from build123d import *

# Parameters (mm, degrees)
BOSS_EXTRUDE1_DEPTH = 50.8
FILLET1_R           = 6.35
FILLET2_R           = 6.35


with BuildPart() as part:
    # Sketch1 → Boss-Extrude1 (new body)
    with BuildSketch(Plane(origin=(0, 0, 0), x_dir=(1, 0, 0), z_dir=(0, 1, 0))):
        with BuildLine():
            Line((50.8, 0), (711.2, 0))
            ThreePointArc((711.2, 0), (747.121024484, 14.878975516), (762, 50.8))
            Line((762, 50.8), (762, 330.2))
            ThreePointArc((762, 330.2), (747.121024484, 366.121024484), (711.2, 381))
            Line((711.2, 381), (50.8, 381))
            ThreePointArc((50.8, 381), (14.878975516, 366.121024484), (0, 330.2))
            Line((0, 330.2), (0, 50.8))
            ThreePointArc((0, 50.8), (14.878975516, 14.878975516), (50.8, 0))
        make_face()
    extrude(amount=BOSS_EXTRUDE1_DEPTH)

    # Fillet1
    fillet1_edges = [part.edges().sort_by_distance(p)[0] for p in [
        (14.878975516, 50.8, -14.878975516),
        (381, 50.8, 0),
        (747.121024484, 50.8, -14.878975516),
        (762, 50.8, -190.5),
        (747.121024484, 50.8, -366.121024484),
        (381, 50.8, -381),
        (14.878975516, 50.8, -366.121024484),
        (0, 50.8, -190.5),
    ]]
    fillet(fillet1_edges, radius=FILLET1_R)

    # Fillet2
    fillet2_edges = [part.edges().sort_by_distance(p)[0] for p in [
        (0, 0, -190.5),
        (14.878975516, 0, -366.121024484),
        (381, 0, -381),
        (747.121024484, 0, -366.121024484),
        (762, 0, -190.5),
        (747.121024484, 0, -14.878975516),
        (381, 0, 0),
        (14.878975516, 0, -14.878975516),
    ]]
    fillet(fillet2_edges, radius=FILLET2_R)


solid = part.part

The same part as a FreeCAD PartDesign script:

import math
import FreeCAD as App
import Part
import Sketcher

V = App.Vector
Q = App.Units.Quantity


def edges_at(feature, points):
    """Names of the edges that pass closest to the given points."""
    edges = feature.Shape.Edges
    near = lambda p: min(range(len(edges)), key=lambda i: edges[i].distToShape(Part.Vertex(*p))[0])
    return sorted({f"Edge{near(p) + 1}" for p in points})

doc = App.newDocument("Part")
params = doc.addObject("Spreadsheet::Sheet", "Params")
for row, (alias, value) in enumerate([
    ("sketch1_radius", "2 in"),
    ("sketch1_width", "26 in"),
    ("sketch1_height", "11 in"),
    ("pad1_length", "2 in"),
    ("fillet_radius", "0.25 in"),
    ("fillet2_radius", "0.25 in"),
], start=1):
    params.set(f"A{row}", alias)
    params.set(f"B{row}", "=" + value)
    params.setAlias(f"B{row}", alias)

body = doc.addObject("PartDesign::Body", "Body")

sketch1 = body.newObject("Sketcher::SketchObject", "Sketch")
sketch1.AttachmentSupport = (doc.getObject("XZ_Plane"), [""])
sketch1.MapMode = "FlatFace"
sketch1.addGeometry(Part.LineSegment(V(51, 0, 0), V(711, 0, 0)), False)
sketch1.addGeometry(Part.ArcOfCircle(Part.Circle(V(711, -51, 0), V(0, 0, 1), 51), math.radians(0), math.radians(90)), False)
sketch1.addGeometry(Part.LineSegment(V(762, -51, 0), V(762, -330, 0)), False)
sketch1.addGeometry(Part.ArcOfCircle(Part.Circle(V(711, -330, 0), V(0, 0, 1), 51), math.radians(-90), math.radians(0)), False)
sketch1.addGeometry(Part.LineSegment(V(711, -381, 0), V(51, -381, 0)), False)
sketch1.addGeometry(Part.ArcOfCircle(Part.Circle(V(51, -330, 0), V(0, 0, 1), 51), math.radians(-180), math.radians(-90)), False)
sketch1.addGeometry(Part.LineSegment(V(0, -330, 0), V(0, -51, 0)), False)
sketch1.addGeometry(Part.ArcOfCircle(Part.Circle(V(51, -51, 0), V(0, 0, 1), 51), math.radians(90), math.radians(180)), False)
sketch1.addConstraint(Sketcher.Constraint("Tangent", 0, 2, 1, 2))
sketch1.addConstraint(Sketcher.Constraint("Tangent", 1, 1, 2, 1))
sketch1.addConstraint(Sketcher.Constraint("Tangent", 2, 2, 3, 2))
sketch1.addConstraint(Sketcher.Constraint("Tangent", 3, 1, 4, 1))
sketch1.addConstraint(Sketcher.Constraint("Tangent", 4, 2, 5, 2))
sketch1.addConstraint(Sketcher.Constraint("Tangent", 5, 1, 6, 1))
sketch1.addConstraint(Sketcher.Constraint("Tangent", 6, 2, 7, 2))
sketch1.addConstraint(Sketcher.Constraint("Tangent", 7, 1, 0, 1))
sketch1.addConstraint(Sketcher.Constraint("Horizontal", 0))
sketch1.addConstraint(Sketcher.Constraint("Vertical", 2))
sketch1.addConstraint(Sketcher.Constraint("Horizontal", 4))
sketch1.addConstraint(Sketcher.Constraint("Vertical", 6))
sketch1.addConstraint(Sketcher.Constraint("Equal", 1, 3))
sketch1.addConstraint(Sketcher.Constraint("Equal", 3, 5))
sketch1.addConstraint(Sketcher.Constraint("Equal", 5, 7))
sketch1.addConstraint(Sketcher.Constraint("PointOnObject", 0, 2, -1))
sketch1.addConstraint(Sketcher.Constraint("PointOnObject", 5, 1, -2))
sketch1.addConstraint(Sketcher.Constraint("Radius", 1, Q("2 in")))
sketch1.addConstraint(Sketcher.Constraint("DistanceX", 0, 1, 0, 2, Q("26 in")))
sketch1.addConstraint(Sketcher.Constraint("DistanceY", 2, 2, 2, 1, Q("11 in")))
sketch1.setExpression("Constraints[17]", "Params.sketch1_radius")
sketch1.setExpression("Constraints[18]", "Params.sketch1_width")
sketch1.setExpression("Constraints[19]", "Params.sketch1_height")
pad1 = body.newObject("PartDesign::Pad", "Pad")
pad1.Profile = sketch1
pad1.setExpression("Length", "Params.pad1_length")
pad1.Reversed = True
doc.recompute()

fillet = body.newObject("PartDesign::Fillet", "Fillet")
fillet.Base = (pad1, edges_at(pad1, [
    (14.879, 50.8, -14.879),
    (381, 50.8, 0),
    (747.121, 50.8, -14.879),
    (762, 50.8, -190.5),
    (747.121, 50.8, -366.121),
    (381, 50.8, -381),
    (14.879, 50.8, -366.121),
    (0, 50.8, -190.5),
]))
fillet.setExpression("Radius", "Params.fillet_radius")
doc.recompute()

fillet2 = body.newObject("PartDesign::Fillet", "Fillet001")
fillet2.Base = (fillet, edges_at(fillet, [
    (0, 0, -190.5),
    (14.879, 0, -366.121),
    (381, 0, -381),
    (747.121, 0, -366.121),
    (762, 0, -190.5),
    (747.121, 0, -14.879),
    (381, 0, 0),
    (14.879, 0, -14.879),
]))
fillet2.setExpression("Radius", "Params.fillet2_radius")

doc.recompute()
